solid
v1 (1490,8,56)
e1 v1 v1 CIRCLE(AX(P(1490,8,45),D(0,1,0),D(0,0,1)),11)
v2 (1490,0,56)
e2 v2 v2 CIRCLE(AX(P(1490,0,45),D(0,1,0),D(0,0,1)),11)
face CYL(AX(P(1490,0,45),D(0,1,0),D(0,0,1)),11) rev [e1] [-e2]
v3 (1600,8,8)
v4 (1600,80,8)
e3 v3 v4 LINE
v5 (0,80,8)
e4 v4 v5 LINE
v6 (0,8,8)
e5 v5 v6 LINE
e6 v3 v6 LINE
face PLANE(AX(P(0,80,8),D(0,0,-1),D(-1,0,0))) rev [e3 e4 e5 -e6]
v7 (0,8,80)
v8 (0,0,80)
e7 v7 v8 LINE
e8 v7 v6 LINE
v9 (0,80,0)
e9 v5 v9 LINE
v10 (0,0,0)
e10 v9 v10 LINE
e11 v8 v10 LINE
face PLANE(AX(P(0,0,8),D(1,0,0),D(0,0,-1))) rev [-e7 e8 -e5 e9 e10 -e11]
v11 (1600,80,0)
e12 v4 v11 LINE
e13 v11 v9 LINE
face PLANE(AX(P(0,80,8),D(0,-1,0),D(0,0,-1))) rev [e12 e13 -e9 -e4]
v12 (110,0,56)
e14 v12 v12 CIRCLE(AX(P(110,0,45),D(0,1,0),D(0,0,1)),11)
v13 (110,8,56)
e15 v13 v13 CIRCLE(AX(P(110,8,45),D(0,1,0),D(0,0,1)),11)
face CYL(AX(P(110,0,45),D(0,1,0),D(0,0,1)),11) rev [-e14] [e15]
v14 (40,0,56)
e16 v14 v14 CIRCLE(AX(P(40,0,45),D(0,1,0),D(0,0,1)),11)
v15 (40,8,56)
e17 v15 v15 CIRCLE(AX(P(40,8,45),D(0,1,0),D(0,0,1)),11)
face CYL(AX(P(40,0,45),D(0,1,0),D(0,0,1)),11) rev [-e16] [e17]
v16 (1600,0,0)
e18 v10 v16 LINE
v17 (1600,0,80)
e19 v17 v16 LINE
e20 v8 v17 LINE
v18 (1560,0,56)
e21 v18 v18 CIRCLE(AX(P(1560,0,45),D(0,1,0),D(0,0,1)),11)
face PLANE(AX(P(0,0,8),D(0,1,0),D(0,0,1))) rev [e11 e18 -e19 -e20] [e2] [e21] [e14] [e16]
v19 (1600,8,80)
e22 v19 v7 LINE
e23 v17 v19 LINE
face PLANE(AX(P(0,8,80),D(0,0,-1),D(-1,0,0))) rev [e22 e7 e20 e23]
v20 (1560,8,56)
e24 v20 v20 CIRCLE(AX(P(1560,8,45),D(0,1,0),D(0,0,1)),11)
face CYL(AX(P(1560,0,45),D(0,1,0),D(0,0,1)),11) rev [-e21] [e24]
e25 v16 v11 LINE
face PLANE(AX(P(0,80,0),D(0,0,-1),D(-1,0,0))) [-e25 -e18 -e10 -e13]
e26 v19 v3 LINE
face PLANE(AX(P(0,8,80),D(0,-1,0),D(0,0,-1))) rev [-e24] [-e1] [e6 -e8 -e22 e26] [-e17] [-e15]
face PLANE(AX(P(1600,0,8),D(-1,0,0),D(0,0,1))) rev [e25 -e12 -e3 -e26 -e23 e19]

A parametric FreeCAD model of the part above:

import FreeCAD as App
import Part
import Sketcher
from FreeCAD import Vector
Q = App.Units.Quantity

doc = App.newDocument("Part")
body = doc.addObject("PartDesign::Body", "Body")

# Sketch on XY plane
sketch1 = body.newObject("Sketcher::SketchObject", "Sketch")
sketch1.AttachmentSupport = (doc.getObject("XY_Plane"), [""])
sketch1.MapMode = "FlatFace"
sketch1.addGeometry(Part.LineSegment(Vector(0, 80, 0), Vector(0, 0, 0)), False)
sketch1.addGeometry(Part.LineSegment(Vector(0, 0, 0), Vector(1600, 0, 0)), False)
sketch1.addGeometry(Part.LineSegment(Vector(1600, 0, 0), Vector(1600, 80, 0)), False)
sketch1.addGeometry(Part.LineSegment(Vector(1600, 80, 0), Vector(0, 80, 0)), False)
sketch1.addConstraint(Sketcher.Constraint("Coincident", 0, 2, 1, 1))
sketch1.addConstraint(Sketcher.Constraint("Coincident", 1, 2, 2, 1))
sketch1.addConstraint(Sketcher.Constraint("Coincident", 2, 2, 3, 1))
sketch1.addConstraint(Sketcher.Constraint("Coincident", 3, 2, 0, 1))
sketch1.addConstraint(Sketcher.Constraint("Vertical", 0))
sketch1.addConstraint(Sketcher.Constraint("Horizontal", 1))
sketch1.addConstraint(Sketcher.Constraint("Vertical", 2))
sketch1.addConstraint(Sketcher.Constraint("Horizontal", 3))
sketch1.addConstraint(Sketcher.Constraint("Coincident", 0, 2, -1, 1))
sketch1.addConstraint(Sketcher.Constraint("DistanceX", 1, 1, 1, 2, Q("1600 mm")))
sketch1.addConstraint(Sketcher.Constraint("DistanceY", 0, 2, 0, 1, Q("80 mm")))
pad1 = body.newObject("PartDesign::Pad", "Pad")
pad1.Profile = sketch1
pad1.Length = 8

# Sketch on XY plane
sketch2 = body.newObject("Sketcher::SketchObject", "Sketch001")
sketch2.AttachmentSupport = (doc.getObject("XY_Plane"), [""])
sketch2.MapMode = "FlatFace"
sketch2.AttachmentOffset = App.Placement(Vector(0, 0, 8), App.Rotation())
sketch2.addGeometry(Part.LineSegment(Vector(0, 8, 0), Vector(0, 0, 0)), False)
sketch2.addGeometry(Part.LineSegment(Vector(0, 0, 0), Vector(1600, 0, 0)), False)
sketch2.addGeometry(Part.LineSegment(Vector(1600, 0, 0), Vector(1600, 8, 0)), False)
sketch2.addGeometry(Part.LineSegment(Vector(1600, 8, 0), Vector(0, 8, 0)), False)
sketch2.addConstraint(Sketcher.Constraint("Coincident", 0, 2, 1, 1))
sketch2.addConstraint(Sketcher.Constraint("Coincident", 1, 2, 2, 1))
sketch2.addConstraint(Sketcher.Constraint("Coincident", 2, 2, 3, 1))
sketch2.addConstraint(Sketcher.Constraint("Coincident", 3, 2, 0, 1))
sketch2.addConstraint(Sketcher.Constraint("Vertical", 0))
sketch2.addConstraint(Sketcher.Constraint("Horizontal", 1))
sketch2.addConstraint(Sketcher.Constraint("Vertical", 2))
sketch2.addConstraint(Sketcher.Constraint("Horizontal", 3))
sketch2.addConstraint(Sketcher.Constraint("Coincident", 0, 2, -1, 1))
sketch2.addConstraint(Sketcher.Constraint("DistanceX", 1, 1, 1, 2, Q("1600 mm")))
sketch2.addConstraint(Sketcher.Constraint("DistanceY", 0, 2, 0, 1, Q("8 mm")))
pad2 = body.newObject("PartDesign::Pad", "Pad001")
pad2.Profile = sketch2
pad2.Length = 72

# Sketch on XZ plane
sketch3 = body.newObject("Sketcher::SketchObject", "Sketch002")
sketch3.AttachmentSupport = (doc.getObject("XZ_Plane"), [""])
sketch3.MapMode = "FlatFace"
sketch3.AttachmentOffset = App.Placement(Vector(0, 0, -8), App.Rotation())
sketch3.addGeometry(Part.Circle(Vector(40, 45, 0), Vector(0, 0, 1), 11), False)
sketch3.addGeometry(Part.Circle(Vector(110, 45, 0), Vector(0, 0, 1), 11), False)
sketch3.addGeometry(Part.Circle(Vector(1490, 45, 0), Vector(0, 0, 1), 11), False)
sketch3.addGeometry(Part.Circle(Vector(1560, 45, 0), Vector(0, 0, 1), 11), False)
sketch3.addConstraint(Sketcher.Constraint("Equal", 0, 1))
sketch3.addConstraint(Sketcher.Constraint("Equal", 1, 2))
sketch3.addConstraint(Sketcher.Constraint("Equal", 2, 3))
sketch3.addConstraint(Sketcher.Constraint("Horizontal", 0, 3, 1, 3))
sketch3.addConstraint(Sketcher.Constraint("Horizontal", 1, 3, 2, 3))
sketch3.addConstraint(Sketcher.Constraint("Horizontal", 2, 3, 3, 3))
sketch3.addConstraint(Sketcher.Constraint("Diameter", 0, Q("22 mm")))
sketch3.addConstraint(Sketcher.Constraint("DistanceX", -1, 1, 0, 3, Q("40 mm")))
sketch3.addConstraint(Sketcher.Constraint("DistanceY", -1, 1, 0, 3, Q("45 mm")))
sketch3.addConstraint(Sketcher.Constraint("DistanceX", -1, 1, 1, 3, Q("110 mm")))
sketch3.addConstraint(Sketcher.Constraint("DistanceX", -1, 1, 2, 3, Q("1490 mm")))
sketch3.addConstraint(Sketcher.Constraint("DistanceX", -1, 1, 3, 3, Q("1560 mm")))
pocket1 = body.newObject("PartDesign::Pocket", "Pocket")
pocket1.Profile = sketch3
pocket1.Type = "ThroughAll"
pocket1.Reversed = True

doc.recompute()
